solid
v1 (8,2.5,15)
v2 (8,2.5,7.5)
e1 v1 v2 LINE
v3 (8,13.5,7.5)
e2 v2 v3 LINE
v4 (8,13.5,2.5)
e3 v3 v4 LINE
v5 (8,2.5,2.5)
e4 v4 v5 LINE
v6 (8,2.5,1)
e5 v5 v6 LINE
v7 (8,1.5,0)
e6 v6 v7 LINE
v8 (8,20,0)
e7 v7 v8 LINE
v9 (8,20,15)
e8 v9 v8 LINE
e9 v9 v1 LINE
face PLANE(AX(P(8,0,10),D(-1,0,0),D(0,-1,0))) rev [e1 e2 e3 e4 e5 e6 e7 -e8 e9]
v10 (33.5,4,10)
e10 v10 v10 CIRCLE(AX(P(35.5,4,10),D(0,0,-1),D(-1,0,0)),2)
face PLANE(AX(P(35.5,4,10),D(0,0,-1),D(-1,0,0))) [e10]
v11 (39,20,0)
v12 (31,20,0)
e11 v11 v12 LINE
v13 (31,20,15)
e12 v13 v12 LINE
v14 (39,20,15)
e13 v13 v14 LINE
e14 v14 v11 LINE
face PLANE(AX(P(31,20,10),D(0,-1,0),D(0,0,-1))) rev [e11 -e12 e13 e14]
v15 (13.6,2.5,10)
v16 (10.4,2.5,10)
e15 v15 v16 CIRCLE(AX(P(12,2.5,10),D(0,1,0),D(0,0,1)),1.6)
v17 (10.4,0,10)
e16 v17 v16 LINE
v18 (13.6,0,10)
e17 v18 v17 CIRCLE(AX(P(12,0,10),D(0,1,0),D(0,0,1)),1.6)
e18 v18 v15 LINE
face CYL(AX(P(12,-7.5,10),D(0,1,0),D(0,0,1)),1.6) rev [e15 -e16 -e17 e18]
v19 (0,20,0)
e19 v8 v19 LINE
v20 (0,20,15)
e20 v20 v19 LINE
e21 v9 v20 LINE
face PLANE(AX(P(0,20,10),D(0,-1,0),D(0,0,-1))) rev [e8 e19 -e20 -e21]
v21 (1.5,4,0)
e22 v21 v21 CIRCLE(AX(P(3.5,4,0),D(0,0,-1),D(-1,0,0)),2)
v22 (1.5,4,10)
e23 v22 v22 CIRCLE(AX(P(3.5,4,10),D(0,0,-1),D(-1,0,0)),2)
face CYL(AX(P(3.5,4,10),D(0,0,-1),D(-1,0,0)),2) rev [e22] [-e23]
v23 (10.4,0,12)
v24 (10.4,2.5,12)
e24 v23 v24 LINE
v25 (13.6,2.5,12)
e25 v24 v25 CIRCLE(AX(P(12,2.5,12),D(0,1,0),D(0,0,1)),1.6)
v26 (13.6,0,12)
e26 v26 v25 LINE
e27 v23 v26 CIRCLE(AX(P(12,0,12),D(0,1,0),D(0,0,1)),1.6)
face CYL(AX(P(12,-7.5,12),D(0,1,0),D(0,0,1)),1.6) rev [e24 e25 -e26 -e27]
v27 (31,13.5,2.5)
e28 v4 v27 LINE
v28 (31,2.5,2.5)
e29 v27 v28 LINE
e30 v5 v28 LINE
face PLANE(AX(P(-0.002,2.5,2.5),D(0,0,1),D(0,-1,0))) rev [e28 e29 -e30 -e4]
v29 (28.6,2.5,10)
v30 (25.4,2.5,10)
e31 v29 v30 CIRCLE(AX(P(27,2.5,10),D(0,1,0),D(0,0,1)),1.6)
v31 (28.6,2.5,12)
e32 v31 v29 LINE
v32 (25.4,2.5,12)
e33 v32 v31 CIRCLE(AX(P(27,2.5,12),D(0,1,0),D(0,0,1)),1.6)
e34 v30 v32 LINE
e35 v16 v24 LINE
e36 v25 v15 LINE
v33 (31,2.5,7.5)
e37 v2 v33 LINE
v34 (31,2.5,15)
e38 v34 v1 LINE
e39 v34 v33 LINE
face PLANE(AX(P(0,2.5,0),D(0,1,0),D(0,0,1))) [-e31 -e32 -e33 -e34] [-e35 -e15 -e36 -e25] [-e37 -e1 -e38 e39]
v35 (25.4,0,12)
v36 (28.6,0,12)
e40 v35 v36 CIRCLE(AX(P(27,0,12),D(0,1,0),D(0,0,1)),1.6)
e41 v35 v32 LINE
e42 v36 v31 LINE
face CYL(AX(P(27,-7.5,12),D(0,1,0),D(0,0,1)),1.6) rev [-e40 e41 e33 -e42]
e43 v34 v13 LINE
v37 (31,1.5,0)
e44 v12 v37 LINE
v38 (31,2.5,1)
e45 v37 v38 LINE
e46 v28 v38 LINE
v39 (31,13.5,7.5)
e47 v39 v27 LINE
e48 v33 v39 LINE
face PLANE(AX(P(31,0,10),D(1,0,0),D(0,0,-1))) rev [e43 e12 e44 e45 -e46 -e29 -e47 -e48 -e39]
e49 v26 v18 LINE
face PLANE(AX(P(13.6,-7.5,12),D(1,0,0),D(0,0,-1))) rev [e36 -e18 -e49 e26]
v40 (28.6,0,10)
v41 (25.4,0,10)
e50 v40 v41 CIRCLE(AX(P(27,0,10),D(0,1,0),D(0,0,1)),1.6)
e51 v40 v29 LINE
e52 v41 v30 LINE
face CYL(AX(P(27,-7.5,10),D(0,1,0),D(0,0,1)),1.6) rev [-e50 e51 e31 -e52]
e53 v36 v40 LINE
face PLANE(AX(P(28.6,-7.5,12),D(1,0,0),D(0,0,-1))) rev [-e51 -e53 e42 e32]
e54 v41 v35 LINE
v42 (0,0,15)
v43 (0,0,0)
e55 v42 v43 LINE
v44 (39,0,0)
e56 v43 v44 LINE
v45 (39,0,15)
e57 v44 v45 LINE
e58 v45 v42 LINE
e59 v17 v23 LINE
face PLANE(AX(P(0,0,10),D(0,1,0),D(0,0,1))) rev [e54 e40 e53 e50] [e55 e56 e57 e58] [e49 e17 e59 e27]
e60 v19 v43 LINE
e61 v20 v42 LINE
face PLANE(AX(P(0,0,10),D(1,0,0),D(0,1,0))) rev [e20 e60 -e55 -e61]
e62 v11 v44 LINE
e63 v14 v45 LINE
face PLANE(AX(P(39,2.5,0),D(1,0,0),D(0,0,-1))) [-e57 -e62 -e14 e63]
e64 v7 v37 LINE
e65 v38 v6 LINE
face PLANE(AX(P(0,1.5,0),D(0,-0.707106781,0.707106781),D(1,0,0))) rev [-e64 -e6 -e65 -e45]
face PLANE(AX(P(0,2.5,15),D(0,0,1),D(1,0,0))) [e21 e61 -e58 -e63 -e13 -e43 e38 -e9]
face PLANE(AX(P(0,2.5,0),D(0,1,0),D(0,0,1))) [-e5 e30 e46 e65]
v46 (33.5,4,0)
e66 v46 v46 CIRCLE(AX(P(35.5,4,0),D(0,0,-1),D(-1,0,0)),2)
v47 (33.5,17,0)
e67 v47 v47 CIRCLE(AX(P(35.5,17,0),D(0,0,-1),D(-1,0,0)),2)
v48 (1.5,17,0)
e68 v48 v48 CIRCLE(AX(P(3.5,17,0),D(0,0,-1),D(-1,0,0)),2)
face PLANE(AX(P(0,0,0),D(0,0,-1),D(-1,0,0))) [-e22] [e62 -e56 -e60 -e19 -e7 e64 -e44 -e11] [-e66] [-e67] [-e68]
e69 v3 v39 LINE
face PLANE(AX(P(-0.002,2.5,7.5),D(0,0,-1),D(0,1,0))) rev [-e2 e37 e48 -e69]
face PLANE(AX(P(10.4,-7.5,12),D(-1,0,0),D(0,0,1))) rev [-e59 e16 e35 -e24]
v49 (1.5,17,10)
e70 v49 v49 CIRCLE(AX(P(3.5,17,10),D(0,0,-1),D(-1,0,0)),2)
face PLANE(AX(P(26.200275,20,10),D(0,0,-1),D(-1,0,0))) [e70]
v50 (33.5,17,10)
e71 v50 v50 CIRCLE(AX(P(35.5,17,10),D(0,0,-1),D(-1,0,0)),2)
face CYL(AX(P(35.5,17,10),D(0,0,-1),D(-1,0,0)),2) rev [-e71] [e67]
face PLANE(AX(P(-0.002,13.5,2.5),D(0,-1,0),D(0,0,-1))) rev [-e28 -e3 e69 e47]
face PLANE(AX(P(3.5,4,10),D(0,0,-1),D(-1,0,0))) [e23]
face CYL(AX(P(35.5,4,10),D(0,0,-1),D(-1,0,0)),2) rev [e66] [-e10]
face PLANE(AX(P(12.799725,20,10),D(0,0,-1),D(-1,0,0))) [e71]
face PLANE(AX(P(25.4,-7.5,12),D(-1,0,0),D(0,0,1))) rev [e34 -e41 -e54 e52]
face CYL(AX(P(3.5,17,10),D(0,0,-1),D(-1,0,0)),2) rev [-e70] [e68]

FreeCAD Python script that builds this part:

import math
import FreeCAD as App
import Part
import Sketcher

V = App.Vector


def edges_at(feature, points):
    """Names of the edges that pass closest to the given points."""
    edges = feature.Shape.Edges
    near = lambda p: min(range(len(edges)), key=lambda i: edges[i].distToShape(Part.Vertex(*p))[0])
    return sorted({f"Edge{near(p) + 1}" for p in points})


def add_polygon(sketch, points):
    """Adds a closed chain of lines whose ends are joined by coincident constraints."""
    first, n = sketch.GeometryCount, len(points)
    for a, b in zip(points, points[1:] + points[:1]):
        sketch.addGeometry(Part.LineSegment(App.Vector(*a, 0), App.Vector(*b, 0)), False)
    for i in range(n):
        sketch.addConstraint(Sketcher.Constraint("Coincident", first + i, 2, first + (i + 1) % n, 1))

doc = App.newDocument("Part")
body = doc.addObject("PartDesign::Body", "Body")

sketch1 = doc.addObject("Sketcher::SketchObject", "Sketch")
body.addObject(sketch1)
sketch1.AttachmentSupport = (doc.XY_Plane, [""])
sketch1.MapMode = "FlatFace"
add_polygon(sketch1, [(0, 20), (0, 0), (8, 0), (8, 20)])
sketch1.addConstraint([
    Sketcher.Constraint("Vertical", 0),
    Sketcher.Constraint("Horizontal", 1),
    Sketcher.Constraint("Vertical", 2),
    Sketcher.Constraint("Horizontal", 3),
    Sketcher.Constraint("Coincident", 0, 2, -1, 1),
    Sketcher.Constraint("DistanceX", 1, 1, 1, 2, 8.0),
    Sketcher.Constraint("DistanceY", 0, 2, 0, 1, 20.0),
])
pad1 = doc.addObject("PartDesign::Pad", "Pad")
body.addObject(pad1)
pad1.Profile = sketch1
pad1.Length = 10
body2 = doc.addObject("PartDesign::Body", "Body001")

sketch2 = doc.addObject("Sketcher::SketchObject", "Sketch001")
body2.addObject(sketch2)
sketch2.AttachmentSupport = (doc.getObject("XY_Plane001"), [""])
sketch2.MapMode = "FlatFace"
add_polygon(sketch2, [(31, 20), (31, 0), (39, 0), (39, 20)])
sketch2.addConstraint([
    Sketcher.Constraint("Vertical", 0),
    Sketcher.Constraint("Horizontal", 1),
    Sketcher.Constraint("Vertical", 2),
    Sketcher.Constraint("Horizontal", 3),
    Sketcher.Constraint("PointOnObject", 0, 2, -1),
    Sketcher.Constraint("DistanceX", 1, 1, 1, 2, 8.0),
    Sketcher.Constraint("DistanceY", 0, 2, 0, 1, 20.0),
    Sketcher.Constraint("DistanceX", -1, 1, 0, 2, 31.0),
])
pad2 = doc.addObject("PartDesign::Pad", "Pad001")
body2.addObject(pad2)
pad2.Profile = sketch2
pad2.Length = 10
body.AllowCompound = True
doc.recompute()

boolean = doc.addObject("PartDesign::Boolean", "Boolean")
body.addObject(boolean)
boolean.Type = "Fuse"
boolean.addObjects([body2])

sketch3 = doc.addObject("Sketcher::SketchObject", "Sketch002")
body.addObject(sketch3)
sketch3.AttachmentSupport = (doc.XZ_Plane, [""])
sketch3.MapMode = "FlatFace"
add_polygon(sketch3, [(0, 15), (0, 0), (39, 0), (39, 15)])
sketch3.addConstraint([
    Sketcher.Constraint("Vertical", 0),
    Sketcher.Constraint("Horizontal", 1),
    Sketcher.Constraint("Vertical", 2),
    Sketcher.Constraint("Horizontal", 3),
    Sketcher.Constraint("Coincident", 0, 2, -1, 1),
    Sketcher.Constraint("DistanceX", 1, 1, 1, 2, 39.0),
    Sketcher.Constraint("DistanceY", 0, 2, 0, 1, 15.0),
])
pad3 = doc.addObject("PartDesign::Pad", "Pad002")
body.addObject(pad3)
pad3.Profile = sketch3
pad3.Length = 2.5
pad3.Reversed = True
doc.recompute()

chamfer = doc.addObject("PartDesign::Chamfer", "Chamfer")
body.addObject(chamfer)
chamfer.Base = (pad3, edges_at(pad3, [(19.5, 2.5, 0)]))
chamfer.Size = 1

sketch4 = doc.addObject("Sketcher::SketchObject", "Sketch003")
body.addObject(sketch4)
sketch4.AttachmentSupport = (doc.XY_Plane, [""])
sketch4.MapMode = "FlatFace"
sketch4.addGeometry([
    Part.Circle(V(35.5, 17, 0), V(0, 0, 1), 2),
    Part.Circle(V(3.5, 17, 0), V(0, 0, 1), 2),
    Part.Circle(V(35.5, 4, 0), V(0, 0, 1), 2),
    Part.Circle(V(3.5, 4, 0), V(0, 0, 1), 2),
], False)
sketch4.addConstraint([
    Sketcher.Constraint("Equal", 0, 1),
    Sketcher.Constraint("Equal", 1, 2),
    Sketcher.Constraint("Equal", 2, 3),
    Sketcher.Constraint("Horizontal", 0, 3, 1, 3),
    Sketcher.Constraint("Horizontal", 2, 3, 3, 3),
    Sketcher.Constraint("Vertical", 0, 3, 2, 3),
    Sketcher.Constraint("Vertical", 1, 3, 3, 3),
    Sketcher.Constraint("Diameter", 0, 4.0),
    Sketcher.Constraint("DistanceY", -1, 1, 0, 3, 17.0),
    Sketcher.Constraint("DistanceY", -1, 1, 2, 3, 4.0),
    Sketcher.Constraint("DistanceX", 1, 3, 0, 3, 32.0),
    Sketcher.Constraint("DistanceX", -1, 1, 0, 3, 35.5),
])
pocket1 = doc.addObject("PartDesign::Pocket", "Pocket")
body.addObject(pocket1)
pocket1.Profile = sketch4
pocket1.Length = 10
pocket1.Reversed = True

sketch5 = doc.addObject("Sketcher::SketchObject", "Sketch004")
body.addObject(sketch5)
sketch5.AttachmentSupport = (doc.XZ_Plane, [""])
sketch5.MapMode = "FlatFace"
sketch5.AttachmentOffset = App.Placement(V(0, 0, -2.5), App.Rotation())
sketch5.addGeometry([
    Part.LineSegment(V(10.4, 10, 0), V(10.4, 12, 0)),
    Part.ArcOfCircle(Part.Circle(V(12, 12, 0), V(0, 0, 1), 1.6), math.radians(0), math.radians(180)),
    Part.LineSegment(V(13.6, 12, 0), V(13.6, 10, 0)),
    Part.ArcOfCircle(Part.Circle(V(12, 10, 0), V(0, 0, 1), 1.6), math.radians(180), math.radians(360)),
    Part.LineSegment(V(25.4, 10, 0), V(25.4, 12, 0)),
    Part.ArcOfCircle(Part.Circle(V(27, 12, 0), V(0, 0, 1), 1.6), math.radians(0), math.radians(180)),
    Part.LineSegment(V(28.6, 12, 0), V(28.6, 10, 0)),
    Part.ArcOfCircle(Part.Circle(V(27, 10, 0), V(0, 0, 1), 1.6), math.radians(180), math.radians(360)),
], False)
sketch5.addConstraint([
    Sketcher.Constraint("Tangent", 0, 2, 1, 2),
    Sketcher.Constraint("Tangent", 1, 1, 2, 1),
    Sketcher.Constraint("Tangent", 2, 2, 3, 2),
    Sketcher.Constraint("Tangent", 3, 1, 0, 1),
    Sketcher.Constraint("Tangent", 4, 2, 5, 2),
    Sketcher.Constraint("Tangent", 5, 1, 6, 1),
    Sketcher.Constraint("Tangent", 6, 2, 7, 2),
    Sketcher.Constraint("Tangent", 7, 1, 4, 1),
    Sketcher.Constraint("Vertical", 0),
    Sketcher.Constraint("Vertical", 2),
    Sketcher.Constraint("Vertical", 4),
    Sketcher.Constraint("Vertical", 6),
    Sketcher.Constraint("Equal", 3, 5),
    Sketcher.Constraint("Horizontal", 1, 3, 5, 3),
    Sketcher.Constraint("Horizontal", 3, 3, 7, 3),
    Sketcher.Constraint("Radius", 1, 1.6),
    Sketcher.Constraint("DistanceY", 0, 1, 0, 2, 2.0),
    Sketcher.Constraint("DistanceX", -1, 1, 1, 3, 12.0),
    Sketcher.Constraint("DistanceY", -1, 1, 1, 3, 12.0),
    Sketcher.Constraint("DistanceX", -1, 1, 5, 3, 27.0),
])
pocket2 = doc.addObject("PartDesign::Pocket", "Pocket001")
body.addObject(pocket2)
pocket2.Profile = sketch5
pocket2.Length = 10
pocket2.Reversed = True

sketch6 = doc.addObject("Sketcher::SketchObject", "Sketch005")
body.addObject(sketch6)
sketch6.AttachmentSupport = (doc.YZ_Plane, [""])
sketch6.MapMode = "FlatFace"
sketch6.AttachmentOffset = App.Placement(V(0, 0, 39), App.Rotation())
add_polygon(sketch6, [(20, 15), (2.5, 15), (2.5, 10), (20, 10)])
sketch6.addConstraint([
    Sketcher.Constraint("Horizontal", 0),
    Sketcher.Constraint("Vertical", 1),
    Sketcher.Constraint("Horizontal", 2),
    Sketcher.Constraint("Vertical", 3),
    Sketcher.Constraint("DistanceY", 1, 2, 1, 1, 5.0),
    Sketcher.Constraint("DistanceX", 0, 2, 0, 1, 17.5),
    Sketcher.Constraint("DistanceY", -1, 1, 0, 2, 15.0),
    Sketcher.Constraint("DistanceX", -1, 1, 2, 2, 20.0),
])
pad4 = doc.addObject("PartDesign::Pad", "Pad003")
body.addObject(pad4)
pad4.Profile = sketch6
pad4.Length = 8
pad4.Reversed = True

sketch7 = doc.addObject("Sketcher::SketchObject", "Sketch006")
body.addObject(sketch7)
sketch7.AttachmentSupport = (doc.YZ_Plane, [""])
sketch7.MapMode = "FlatFace"
add_polygon(sketch7, [(20, 10), (2.5, 10), (2.5, 15), (20, 15)])
sketch7.addConstraint([
    Sketcher.Constraint("Horizontal", 0),
    Sketcher.Constraint("Vertical", 1),
    Sketcher.Constraint("Horizontal", 2),
    Sketcher.Constraint("Vertical", 3),
    Sketcher.Constraint("DistanceY", 1, 1, 1, 2, 5.0),
    Sketcher.Constraint("DistanceX", 0, 2, 0, 1, 17.5),
    Sketcher.Constraint("DistanceY", -1, 1, 0, 2, 10.0),
    Sketcher.Constraint("DistanceX", -1, 1, 2, 2, 20.0),
])
pad5 = doc.addObject("PartDesign::Pad", "Pad004")
body.addObject(pad5)
pad5.Profile = sketch7
pad5.Length = 8

sketch8 = doc.addObject("Sketcher::SketchObject", "Sketch007")
body.addObject(sketch8)
sketch8.AttachmentSupport = (doc.YZ_Plane, [""])
sketch8.MapMode = "FlatFace"
sketch8.AttachmentOffset = App.Placement(V(0, 0, 31), App.Rotation())
add_polygon(sketch8, [(13.5, 2.5), (2.5, 2.5), (2.5, 7.5), (13.5, 7.5)])
sketch8.addConstraint([
    Sketcher.Constraint("Horizontal", 0),
    Sketcher.Constraint("Vertical", 1),
    Sketcher.Constraint("Horizontal", 2),
    Sketcher.Constraint("Vertical", 3),
    Sketcher.Constraint("DistanceX", 0, 2, 0, 1, 11.0),
    Sketcher.Constraint("DistanceY", 1, 1, 1, 2, 5.0),
    Sketcher.Constraint("DistanceX", -1, 1, 0, 2, 2.5),
    Sketcher.Constraint("DistanceY", -1, 1, 0, 2, 2.5),
])
pad6 = doc.addObject("PartDesign::Pad", "Pad005")
body.addObject(pad6)
pad6.Profile = sketch8
pad6.Type = "UpToFirst"
pad6.Reversed = True

doc.recompute()
